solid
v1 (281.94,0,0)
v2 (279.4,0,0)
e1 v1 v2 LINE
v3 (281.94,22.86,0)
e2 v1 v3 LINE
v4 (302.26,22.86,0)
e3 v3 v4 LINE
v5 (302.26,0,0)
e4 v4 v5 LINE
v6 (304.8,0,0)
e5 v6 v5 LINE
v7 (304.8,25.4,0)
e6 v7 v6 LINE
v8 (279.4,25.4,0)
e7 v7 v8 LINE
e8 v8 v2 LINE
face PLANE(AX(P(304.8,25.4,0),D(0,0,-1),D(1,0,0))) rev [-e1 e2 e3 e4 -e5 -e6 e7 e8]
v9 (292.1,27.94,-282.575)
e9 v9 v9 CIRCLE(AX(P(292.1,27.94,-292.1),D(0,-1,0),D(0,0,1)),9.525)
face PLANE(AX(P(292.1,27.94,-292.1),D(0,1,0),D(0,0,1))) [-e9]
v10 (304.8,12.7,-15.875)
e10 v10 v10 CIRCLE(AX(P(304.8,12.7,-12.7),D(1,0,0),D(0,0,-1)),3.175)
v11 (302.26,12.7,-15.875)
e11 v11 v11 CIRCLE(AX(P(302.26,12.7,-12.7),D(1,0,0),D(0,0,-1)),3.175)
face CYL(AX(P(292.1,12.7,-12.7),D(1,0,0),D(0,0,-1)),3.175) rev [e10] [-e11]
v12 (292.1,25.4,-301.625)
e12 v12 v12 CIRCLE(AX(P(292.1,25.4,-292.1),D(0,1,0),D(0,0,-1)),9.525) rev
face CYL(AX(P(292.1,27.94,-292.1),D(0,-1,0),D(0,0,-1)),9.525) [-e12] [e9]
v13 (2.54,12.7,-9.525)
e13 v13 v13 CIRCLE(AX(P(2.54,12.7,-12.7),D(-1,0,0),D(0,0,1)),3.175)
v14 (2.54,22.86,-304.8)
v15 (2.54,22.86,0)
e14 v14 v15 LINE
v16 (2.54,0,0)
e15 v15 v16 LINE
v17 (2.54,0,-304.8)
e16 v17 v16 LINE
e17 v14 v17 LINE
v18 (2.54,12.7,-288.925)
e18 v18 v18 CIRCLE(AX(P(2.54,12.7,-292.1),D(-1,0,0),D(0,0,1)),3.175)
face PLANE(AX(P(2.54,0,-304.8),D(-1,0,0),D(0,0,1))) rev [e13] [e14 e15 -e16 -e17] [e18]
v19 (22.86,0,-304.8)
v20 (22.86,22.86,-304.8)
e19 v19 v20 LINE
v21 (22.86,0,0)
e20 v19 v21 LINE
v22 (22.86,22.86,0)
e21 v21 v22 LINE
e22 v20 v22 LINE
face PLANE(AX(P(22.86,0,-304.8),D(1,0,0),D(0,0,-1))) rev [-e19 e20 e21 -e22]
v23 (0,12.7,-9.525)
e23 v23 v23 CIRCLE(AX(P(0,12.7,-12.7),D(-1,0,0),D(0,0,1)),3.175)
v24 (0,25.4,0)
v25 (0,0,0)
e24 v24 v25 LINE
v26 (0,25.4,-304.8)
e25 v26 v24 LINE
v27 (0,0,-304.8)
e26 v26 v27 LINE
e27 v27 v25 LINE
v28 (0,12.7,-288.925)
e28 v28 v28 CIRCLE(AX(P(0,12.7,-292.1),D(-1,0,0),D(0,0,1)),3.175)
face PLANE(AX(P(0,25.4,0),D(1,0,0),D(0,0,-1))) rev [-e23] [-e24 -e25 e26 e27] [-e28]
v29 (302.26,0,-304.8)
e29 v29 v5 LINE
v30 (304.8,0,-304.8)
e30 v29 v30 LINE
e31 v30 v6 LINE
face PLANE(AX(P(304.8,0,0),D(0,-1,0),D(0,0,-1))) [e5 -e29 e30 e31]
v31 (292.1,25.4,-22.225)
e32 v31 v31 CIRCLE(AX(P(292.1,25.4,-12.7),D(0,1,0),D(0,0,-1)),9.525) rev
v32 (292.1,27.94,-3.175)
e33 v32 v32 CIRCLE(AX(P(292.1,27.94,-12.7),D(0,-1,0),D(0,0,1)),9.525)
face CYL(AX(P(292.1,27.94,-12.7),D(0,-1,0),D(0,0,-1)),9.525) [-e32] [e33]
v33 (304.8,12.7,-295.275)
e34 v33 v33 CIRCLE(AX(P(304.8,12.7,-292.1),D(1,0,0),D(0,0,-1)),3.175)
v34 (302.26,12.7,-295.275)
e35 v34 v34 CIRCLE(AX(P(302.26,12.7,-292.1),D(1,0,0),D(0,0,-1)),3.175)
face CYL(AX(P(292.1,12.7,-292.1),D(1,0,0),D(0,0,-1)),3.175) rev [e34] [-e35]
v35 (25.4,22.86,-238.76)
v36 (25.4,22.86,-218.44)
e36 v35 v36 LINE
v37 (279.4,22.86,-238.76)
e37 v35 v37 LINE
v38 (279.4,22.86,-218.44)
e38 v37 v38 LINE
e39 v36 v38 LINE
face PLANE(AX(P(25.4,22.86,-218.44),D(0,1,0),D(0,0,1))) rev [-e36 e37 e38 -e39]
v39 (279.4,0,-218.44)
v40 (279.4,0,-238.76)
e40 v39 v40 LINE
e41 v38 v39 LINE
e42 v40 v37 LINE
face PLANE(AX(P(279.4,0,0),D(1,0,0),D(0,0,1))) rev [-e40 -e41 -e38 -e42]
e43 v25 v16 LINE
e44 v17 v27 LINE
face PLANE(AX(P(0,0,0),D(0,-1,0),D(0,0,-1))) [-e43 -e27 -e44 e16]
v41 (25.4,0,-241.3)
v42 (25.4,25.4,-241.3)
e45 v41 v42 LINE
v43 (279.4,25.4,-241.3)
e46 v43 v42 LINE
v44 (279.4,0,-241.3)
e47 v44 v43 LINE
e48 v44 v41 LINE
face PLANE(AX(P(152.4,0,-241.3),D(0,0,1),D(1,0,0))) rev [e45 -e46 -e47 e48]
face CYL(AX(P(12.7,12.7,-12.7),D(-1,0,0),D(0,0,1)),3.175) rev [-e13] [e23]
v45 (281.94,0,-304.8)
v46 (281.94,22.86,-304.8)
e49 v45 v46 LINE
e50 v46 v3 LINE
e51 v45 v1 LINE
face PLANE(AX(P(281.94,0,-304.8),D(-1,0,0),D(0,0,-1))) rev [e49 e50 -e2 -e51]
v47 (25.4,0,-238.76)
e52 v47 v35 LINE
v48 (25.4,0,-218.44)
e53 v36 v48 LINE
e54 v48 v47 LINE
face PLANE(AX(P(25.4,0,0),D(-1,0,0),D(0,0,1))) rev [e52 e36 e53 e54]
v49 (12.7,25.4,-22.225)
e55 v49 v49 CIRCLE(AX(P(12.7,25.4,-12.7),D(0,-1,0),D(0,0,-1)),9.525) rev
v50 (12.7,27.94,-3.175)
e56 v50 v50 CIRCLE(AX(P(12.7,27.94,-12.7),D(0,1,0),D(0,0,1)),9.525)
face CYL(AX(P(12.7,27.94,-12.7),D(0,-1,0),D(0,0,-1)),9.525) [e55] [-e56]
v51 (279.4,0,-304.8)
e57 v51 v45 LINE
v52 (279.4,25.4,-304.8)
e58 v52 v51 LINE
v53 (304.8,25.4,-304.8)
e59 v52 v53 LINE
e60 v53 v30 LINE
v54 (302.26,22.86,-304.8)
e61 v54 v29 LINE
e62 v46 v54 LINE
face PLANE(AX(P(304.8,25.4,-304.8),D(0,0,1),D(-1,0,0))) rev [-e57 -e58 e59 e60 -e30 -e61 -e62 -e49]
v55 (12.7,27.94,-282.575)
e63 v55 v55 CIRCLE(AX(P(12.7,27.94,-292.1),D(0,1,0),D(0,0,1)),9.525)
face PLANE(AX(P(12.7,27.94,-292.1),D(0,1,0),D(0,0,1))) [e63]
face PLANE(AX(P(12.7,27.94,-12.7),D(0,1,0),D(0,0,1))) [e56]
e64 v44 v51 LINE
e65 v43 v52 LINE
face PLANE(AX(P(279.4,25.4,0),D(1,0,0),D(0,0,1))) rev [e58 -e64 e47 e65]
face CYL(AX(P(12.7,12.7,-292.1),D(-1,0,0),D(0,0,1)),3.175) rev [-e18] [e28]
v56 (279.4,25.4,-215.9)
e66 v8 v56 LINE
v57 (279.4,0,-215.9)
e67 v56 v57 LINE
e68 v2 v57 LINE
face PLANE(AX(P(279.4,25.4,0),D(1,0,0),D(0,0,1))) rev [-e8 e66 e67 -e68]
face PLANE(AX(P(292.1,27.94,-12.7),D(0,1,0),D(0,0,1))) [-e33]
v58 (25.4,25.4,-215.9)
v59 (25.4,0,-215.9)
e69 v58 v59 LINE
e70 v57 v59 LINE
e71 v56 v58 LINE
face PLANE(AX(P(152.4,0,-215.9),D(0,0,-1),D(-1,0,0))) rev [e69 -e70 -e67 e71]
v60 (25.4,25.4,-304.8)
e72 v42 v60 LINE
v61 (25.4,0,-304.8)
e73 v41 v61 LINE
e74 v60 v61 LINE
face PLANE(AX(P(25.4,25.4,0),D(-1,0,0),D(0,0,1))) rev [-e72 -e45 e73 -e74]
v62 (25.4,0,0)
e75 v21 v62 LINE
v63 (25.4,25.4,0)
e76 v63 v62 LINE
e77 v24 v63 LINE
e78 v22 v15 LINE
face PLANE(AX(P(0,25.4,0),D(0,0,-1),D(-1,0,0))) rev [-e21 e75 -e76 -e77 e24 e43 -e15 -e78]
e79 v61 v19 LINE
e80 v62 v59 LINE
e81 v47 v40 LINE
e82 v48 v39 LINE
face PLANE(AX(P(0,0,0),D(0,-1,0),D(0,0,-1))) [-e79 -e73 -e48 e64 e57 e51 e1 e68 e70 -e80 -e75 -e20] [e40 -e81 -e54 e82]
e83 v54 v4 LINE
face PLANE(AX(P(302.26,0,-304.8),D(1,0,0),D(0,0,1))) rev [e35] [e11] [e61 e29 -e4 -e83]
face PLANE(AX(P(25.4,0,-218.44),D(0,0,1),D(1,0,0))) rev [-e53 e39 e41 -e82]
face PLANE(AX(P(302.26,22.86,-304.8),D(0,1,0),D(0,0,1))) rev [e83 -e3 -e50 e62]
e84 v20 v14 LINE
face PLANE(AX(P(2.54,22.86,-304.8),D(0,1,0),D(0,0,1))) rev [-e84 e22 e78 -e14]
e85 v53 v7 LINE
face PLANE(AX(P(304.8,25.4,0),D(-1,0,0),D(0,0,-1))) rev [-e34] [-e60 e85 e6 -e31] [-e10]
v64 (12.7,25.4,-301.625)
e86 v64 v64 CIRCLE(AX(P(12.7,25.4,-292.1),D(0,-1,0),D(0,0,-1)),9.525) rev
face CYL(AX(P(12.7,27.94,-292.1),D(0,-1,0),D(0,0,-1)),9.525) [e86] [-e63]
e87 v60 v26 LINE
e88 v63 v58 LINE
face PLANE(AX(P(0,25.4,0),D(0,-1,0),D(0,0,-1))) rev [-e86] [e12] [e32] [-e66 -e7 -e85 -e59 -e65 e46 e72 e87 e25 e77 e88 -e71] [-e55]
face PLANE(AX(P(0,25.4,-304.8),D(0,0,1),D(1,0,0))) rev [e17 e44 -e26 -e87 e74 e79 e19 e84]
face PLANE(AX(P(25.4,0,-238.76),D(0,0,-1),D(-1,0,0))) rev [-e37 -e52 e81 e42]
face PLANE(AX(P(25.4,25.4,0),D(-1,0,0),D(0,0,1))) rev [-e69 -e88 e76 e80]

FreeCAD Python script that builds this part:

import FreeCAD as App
import Part
import Sketcher

V = App.Vector
Q = App.Units.Quantity


def add_polygon(sketch, points):
    """Adds a closed chain of lines whose ends are joined by coincident constraints."""
    first, n = sketch.GeometryCount, len(points)
    for a, b in zip(points, points[1:] + points[:1]):
        sketch.addGeometry(Part.LineSegment(App.Vector(*a, 0), App.Vector(*b, 0)), False)
    for i in range(n):
        sketch.addConstraint(Sketcher.Constraint("Coincident", first + i, 2, first + (i + 1) % n, 1))

doc = App.newDocument("Part")
body = doc.addObject("PartDesign::Body", "Body")

# Sketch on XZ plane
sketch1 = body.newObject("Sketcher::SketchObject", "Sketch")
sketch1.AttachmentSupport = (doc.getObject("XZ_Plane"), [""])
sketch1.MapMode = "FlatFace"
add_polygon(sketch1, [(0, -305), (0, 0), (25, 0), (25, -305)])  # lines 0-3
sketch1.addConstraint([
    Sketcher.Constraint("Vertical", 0),
    Sketcher.Constraint("Horizontal", 1),
    Sketcher.Constraint("Vertical", 2),
    Sketcher.Constraint("Horizontal", 3),
    Sketcher.Constraint("Coincident", 0, 2, -1, 1),
    Sketcher.Constraint("DistanceX", 1, 1, 1, 2, Q("1 in")),
    Sketcher.Constraint("DistanceY", 0, 1, 0, 2, Q("12 in")),
])
pad1 = body.newObject("PartDesign::Pad", "Pad")
pad1.Profile = sketch1
pad1.Length = Q("1 in")
pad1.Reversed = True

# Sketch on XY plane
sketch2 = body.newObject("Sketcher::SketchObject", "Sketch001")
sketch2.AttachmentSupport = (doc.getObject("XY_Plane"), [""])
sketch2.MapMode = "FlatFace"
add_polygon(sketch2, [(3, 23), (3, 0), (23, 0), (23, 23)])  # lines 0-3
sketch2.addConstraint([
    Sketcher.Constraint("Vertical", 0),
    Sketcher.Constraint("Horizontal", 1),
    Sketcher.Constraint("Vertical", 2),
    Sketcher.Constraint("Horizontal", 3),
    Sketcher.Constraint("PointOnObject", 0, 2, -1),
    Sketcher.Constraint("DistanceX", 1, 1, 1, 2, Q("0.8 in")),
    Sketcher.Constraint("DistanceY", 0, 2, 0, 1, Q("0.9 in")),
    Sketcher.Constraint("DistanceX", -1, 1, 0, 2, Q("0.1 in")),
])
pocket1 = body.newObject("PartDesign::Pocket", "Pocket")
pocket1.Profile = sketch2
pocket1.Type = "ThroughAll"

# Sketch on XZ plane
sketch3 = body.newObject("Sketcher::SketchObject", "Sketch002")
sketch3.AttachmentSupport = (doc.getObject("XZ_Plane"), [""])
sketch3.MapMode = "FlatFace"
sketch3.AttachmentOffset = App.Placement(V(0, 0, -1 * 25.4), App.Rotation())
sketch3.addGeometry([
    Part.Circle(V(13, -13, 0), V(0, 0, 1), 10),
    Part.Circle(V(13, -292, 0), V(0, 0, 1), 10),
], False)
sketch3.addConstraint([
    Sketcher.Constraint("Equal", 0, 1),
    Sketcher.Constraint("Vertical", 0, 3, 1, 3),
    Sketcher.Constraint("Diameter", 0, Q("0.75 in")),
    Sketcher.Constraint("DistanceY", 1, 3, 0, 3, Q("11 in")),
    Sketcher.Constraint("DistanceX", -1, 1, 0, 3, Q("0.5 in")),
    Sketcher.Constraint("DistanceY", 0, 3, -1, 1, Q("0.5 in")),
])
pad2 = body.newObject("PartDesign::Pad", "Pad001")
pad2.Profile = sketch3
pad2.Length = Q("0.1 in")
pad2.Reversed = True

# Sketch on YZ plane
sketch4 = body.newObject("Sketcher::SketchObject", "Sketch003")
sketch4.AttachmentSupport = (doc.getObject("YZ_Plane"), [""])
sketch4.MapMode = "FlatFace"
sketch4.AttachmentOffset = App.Placement(V(0, 0, 1 * 25.4), App.Rotation())
add_polygon(sketch4, [(25, -216), (0, -216), (0, -241), (25, -241)])  # lines 0-3
sketch4.addConstraint([
    Sketcher.Constraint("Horizontal", 0),
    Sketcher.Constraint("Vertical", 1),
    Sketcher.Constraint("Horizontal", 2),
    Sketcher.Constraint("Vertical", 3),
    Sketcher.Constraint("PointOnObject", 0, 2, -2),
    Sketcher.Constraint("Equal", 2, 1),
    Sketcher.Constraint("DistanceX", 0, 2, 0, 1, Q("1 in")),
    Sketcher.Constraint("DistanceY", 0, 2, -1, 1, Q("8.5 in")),
])
pad3 = body.newObject("PartDesign::Pad", "Pad002")
pad3.Profile = sketch4
pad3.Length = Q("5 in")

# Sketch on YZ plane
sketch5 = body.newObject("Sketcher::SketchObject", "Sketch004")
sketch5.AttachmentSupport = (doc.getObject("YZ_Plane"), [""])
sketch5.MapMode = "FlatFace"
sketch5.AttachmentOffset = App.Placement(V(0, 0, 6 * 25.4), App.Rotation())
add_polygon(sketch5, [(23, -218), (0, -218), (0, -239), (23, -239)])  # lines 0-3
sketch5.addConstraint([
    Sketcher.Constraint("Horizontal", 0),
    Sketcher.Constraint("Vertical", 1),
    Sketcher.Constraint("Horizontal", 2),
    Sketcher.Constraint("Vertical", 3),
    Sketcher.Constraint("PointOnObject", 0, 2, -2),
    Sketcher.Constraint("DistanceX", 0, 2, 0, 1, Q("0.9 in")),
    Sketcher.Constraint("DistanceY", 1, 2, 1, 1, Q("0.8 in")),
    Sketcher.Constraint("DistanceY", 0, 2, -1, 1, Q("8.6 in")),
])
pocket2 = body.newObject("PartDesign::Pocket", "Pocket001")
pocket2.Profile = sketch5
pocket2.Length = Q("5 in")
body2 = doc.addObject("PartDesign::Body", "Body001")
doc.recompute()

body2.BaseFeature = body
doc.recompute()

mirroring = doc.addObject("Part::Mirroring", "Mirroring")
mirroring.Source = body
mirroring.Base = V(152.4, 0, 0)
mirroring.Normal = V(-1, 0, 0)
body3 = doc.addObject("PartDesign::Body", "Body002")
body3.BaseFeature = mirroring
boolean = body2.newObject("PartDesign::Boolean", "Boolean")
boolean.Type = "Fuse"
boolean.addObjects([body3])
doc.recompute()

# Sketch on YZ plane
sketch6 = body2.newObject("Sketcher::SketchObject", "Sketch005")
sketch6.AttachmentSupport = (doc.getObject("YZ_Plane001"), [""])
sketch6.MapMode = "FlatFace"
sketch6.AttachmentOffset = App.Placement(V(0, 0, 12 * 25.4), App.Rotation())
sketch6.addGeometry([
    Part.Circle(V(12.7, -12.7, 0), V(0, 0, 1), 3.2),
    Part.Circle(V(12.7, -292.1, 0), V(0, 0, 1), 3.2),
], False)
sketch6.addConstraint([
    Sketcher.Constraint("Equal", 0, 1),
    Sketcher.Constraint("Vertical", 0, 3, 1, 3),
    Sketcher.Constraint("Diameter", 0, Q("0.25 in")),
    Sketcher.Constraint("DistanceY", 1, 3, 0, 3, Q("11 in")),
    Sketcher.Constraint("DistanceX", -1, 1, 0, 3, Q("0.5 in")),
    Sketcher.Constraint("DistanceY", 0, 3, -1, 1, Q("0.5 in")),
])
pocket3 = body2.newObject("PartDesign::Pocket", "Pocket002")
pocket3.Profile = sketch6
pocket3.Length = Q("0.5 in")

# Sketch on YZ plane
sketch7 = body2.newObject("Sketcher::SketchObject", "Sketch006")
sketch7.AttachmentSupport = (doc.getObject("YZ_Plane001"), [""])
sketch7.MapMode = "FlatFace"
sketch7.AttachmentOffset = App.Placement(V(0, 0, 0.5 * 25.4), App.Rotation())
sketch7.addGeometry([
    Part.Circle(V(12.7, -292.1, 0), V(0, 0, 1), 3.2),
    Part.Circle(V(12.7, -12.7, 0), V(0, 0, 1), 3.2),
], False)
sketch7.addConstraint([
    Sketcher.Constraint("Equal", 0, 1),
    Sketcher.Constraint("Vertical", 0, 3, 1, 3),
    Sketcher.Constraint("Diameter", 0, Q("0.25 in")),
    Sketcher.Constraint("DistanceY", 0, 3, 1, 3, Q("11 in")),
    Sketcher.Constraint("DistanceX", -1, 1, 0, 3, Q("0.5 in")),
    Sketcher.Constraint("DistanceY", 0, 3, -1, 1, Q("11.5 in")),
])
pocket4 = body2.newObject("PartDesign::Pocket", "Pocket003")
pocket4.Profile = sketch7
pocket4.Length = Q("0.5 in")
mirroring.Visibility = False

doc.recompute()
